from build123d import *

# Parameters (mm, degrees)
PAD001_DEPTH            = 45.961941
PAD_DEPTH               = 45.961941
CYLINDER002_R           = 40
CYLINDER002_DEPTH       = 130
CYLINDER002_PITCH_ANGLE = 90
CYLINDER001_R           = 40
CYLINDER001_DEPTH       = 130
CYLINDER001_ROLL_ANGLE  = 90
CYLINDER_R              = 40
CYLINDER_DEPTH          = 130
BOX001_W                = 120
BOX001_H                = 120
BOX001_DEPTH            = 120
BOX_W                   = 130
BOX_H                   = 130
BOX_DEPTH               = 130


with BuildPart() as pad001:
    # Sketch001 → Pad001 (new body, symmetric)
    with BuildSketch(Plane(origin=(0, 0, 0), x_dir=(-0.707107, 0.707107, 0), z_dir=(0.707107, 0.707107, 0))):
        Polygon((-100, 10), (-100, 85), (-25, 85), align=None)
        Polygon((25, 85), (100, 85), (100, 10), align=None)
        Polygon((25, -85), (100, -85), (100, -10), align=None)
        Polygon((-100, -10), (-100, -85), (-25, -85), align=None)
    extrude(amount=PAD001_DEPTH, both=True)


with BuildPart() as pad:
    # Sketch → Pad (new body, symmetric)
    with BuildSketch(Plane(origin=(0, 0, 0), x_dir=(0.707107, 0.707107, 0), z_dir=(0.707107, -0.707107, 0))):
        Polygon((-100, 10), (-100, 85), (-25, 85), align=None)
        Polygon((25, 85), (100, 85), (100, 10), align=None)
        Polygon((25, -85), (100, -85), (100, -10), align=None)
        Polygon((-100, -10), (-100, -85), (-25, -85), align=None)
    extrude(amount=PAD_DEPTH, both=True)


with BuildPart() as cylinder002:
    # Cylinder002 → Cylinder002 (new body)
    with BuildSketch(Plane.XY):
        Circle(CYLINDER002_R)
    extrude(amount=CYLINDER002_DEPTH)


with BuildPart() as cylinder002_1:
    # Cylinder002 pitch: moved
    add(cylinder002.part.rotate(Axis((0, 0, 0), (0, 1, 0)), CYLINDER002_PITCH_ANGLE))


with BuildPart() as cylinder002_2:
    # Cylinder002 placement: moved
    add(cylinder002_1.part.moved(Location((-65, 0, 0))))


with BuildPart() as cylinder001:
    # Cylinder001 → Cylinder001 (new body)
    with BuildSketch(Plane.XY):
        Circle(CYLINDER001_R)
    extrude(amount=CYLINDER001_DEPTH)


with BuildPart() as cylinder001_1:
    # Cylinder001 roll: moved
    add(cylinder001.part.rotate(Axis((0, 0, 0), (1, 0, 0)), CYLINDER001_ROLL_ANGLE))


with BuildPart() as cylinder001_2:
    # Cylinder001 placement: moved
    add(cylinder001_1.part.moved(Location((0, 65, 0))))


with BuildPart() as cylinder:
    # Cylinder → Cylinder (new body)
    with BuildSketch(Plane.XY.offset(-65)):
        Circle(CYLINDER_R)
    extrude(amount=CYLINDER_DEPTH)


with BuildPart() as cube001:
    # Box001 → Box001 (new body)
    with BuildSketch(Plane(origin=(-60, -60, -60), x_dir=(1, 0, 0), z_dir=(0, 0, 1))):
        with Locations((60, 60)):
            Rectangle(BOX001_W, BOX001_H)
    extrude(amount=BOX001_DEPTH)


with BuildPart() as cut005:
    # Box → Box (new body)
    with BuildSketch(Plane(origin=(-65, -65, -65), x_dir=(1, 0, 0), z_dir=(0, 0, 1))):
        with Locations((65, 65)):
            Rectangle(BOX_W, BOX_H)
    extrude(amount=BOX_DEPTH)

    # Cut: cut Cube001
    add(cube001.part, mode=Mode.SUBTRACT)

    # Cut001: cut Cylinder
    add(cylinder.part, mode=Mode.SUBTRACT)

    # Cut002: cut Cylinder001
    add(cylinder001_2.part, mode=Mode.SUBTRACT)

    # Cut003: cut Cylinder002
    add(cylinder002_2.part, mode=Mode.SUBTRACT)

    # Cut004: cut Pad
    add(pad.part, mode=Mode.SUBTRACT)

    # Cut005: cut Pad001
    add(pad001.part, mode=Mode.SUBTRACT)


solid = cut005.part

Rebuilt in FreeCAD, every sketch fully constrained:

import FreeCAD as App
import Part
import Sketcher
from FreeCAD import Vector


def add_polygon(sketch, points):
    """Adds a closed chain of lines whose ends are joined by coincident constraints."""
    first, n = sketch.GeometryCount, len(points)
    for a, b in zip(points, points[1:] + points[:1]):
        sketch.addGeometry(Part.LineSegment(App.Vector(*a, 0), App.Vector(*b, 0)), False)
    for i in range(n):
        sketch.addConstraint(Sketcher.Constraint("Coincident", first + i, 2, first + (i + 1) % n, 1))

doc = App.newDocument("Part")
params = doc.addObject("Spreadsheet::Sheet", "Params")
for row, (alias, value) in enumerate([
    ("sketch1_width", "75 mm"),
    ("pad1_length", "91.923882 mm"),
    ("sketch2_width", "75 mm"),
    ("pad2_length", "91.923882 mm"),
    ("sketch3_diameter", "80 mm"),
    ("pad3_length", "130 mm"),
    ("sketch4_diameter", "80 mm"),
    ("pad4_length", "130 mm"),
    ("sketch5_diameter", "80 mm"),
    ("pad5_length", "130 mm"),
    ("sketch6_width", "120 mm"),
    ("pad6_length", "120 mm"),
    ("sketch7_width", "130 mm"),
    ("pad7_length", "130 mm"),
], start=1):
    params.set(f"A{row}", alias)
    params.set(f"B{row}", "=" + value)
    params.setAlias(f"B{row}", alias)

body = doc.addObject("PartDesign::Body", "Body")
body.AllowCompound = True

sketch1 = body.newObject("Sketcher::SketchObject", "Sketch")
sketch1.Placement = App.Placement(Vector(0, 0, 0), App.Rotation(Vector(-0.707106781, 0.707106781, 0), Vector(0, 0, 0.999999999), Vector(0.707106781, 0.707106781, 0), "ZXY"))
add_polygon(sketch1, [(-100, 85), (-100, 10), (-25, 85)])
add_polygon(sketch1, [(100, 85), (25, 85), (100, 10)])
add_polygon(sketch1, [(25, -85), (100, -85), (100, -10)])
add_polygon(sketch1, [(-100, -10), (-100, -85), (-25, -85)])
sketch1.addConstraint(Sketcher.Constraint("Vertical", 0))
sketch1.addConstraint(Sketcher.Constraint("Horizontal", 2))
sketch1.addConstraint(Sketcher.Constraint("Horizontal", 3))
sketch1.addConstraint(Sketcher.Constraint("Vertical", 5))
sketch1.addConstraint(Sketcher.Constraint("Horizontal", 6))
sketch1.addConstraint(Sketcher.Constraint("Vertical", 7))
sketch1.addConstraint(Sketcher.Constraint("Vertical", 9))
sketch1.addConstraint(Sketcher.Constraint("Horizontal", 10))
sketch1.addConstraint(Sketcher.Constraint("Symmetric", 2, 2, 6, 2, -1, 1))
sketch1.addConstraint(Sketcher.Constraint("Symmetric", 5, 2, 9, 2, -1, 1))
sketch1.addConstraint(Sketcher.Constraint("Symmetric", 1, 2, 3, 2, -2))
sketch1.addConstraint(Sketcher.Constraint("Symmetric", 0, 2, 4, 2, -2))
sketch1.addConstraint(Sketcher.Constraint("Perpendicular", 1, 4))
sketch1.addConstraint(Sketcher.Constraint("Perpendicular", 4, 8))
sketch1.addConstraint(Sketcher.Constraint("Perpendicular", 8, 11))
sketch1.addConstraint(Sketcher.Constraint("Horizontal", 7, 2, 11, 2))
sketch1.addConstraint(Sketcher.Constraint("Vertical", 3, 2, 8, 2))
sketch1.addConstraint(Sketcher.Constraint("DistanceX", 2, 2, 2, 1, 75.0))
sketch1.addConstraint(Sketcher.Constraint("DistanceX", 0, 2, -1, 1, 100.0))
sketch1.addConstraint(Sketcher.Constraint("DistanceY", -1, 1, 0, 2, 10.0))
sketch1.setExpression("Constraints[29]", "Params.sketch1_width")
pad1 = body.newObject("PartDesign::Pad", "Pad")
pad1.Profile = sketch1
pad1.setExpression("Length", "Params.pad1_length")
pad1.Midplane = True
body2 = doc.addObject("PartDesign::Body", "Body001")
body2.AllowCompound = True

sketch2 = body2.newObject("Sketcher::SketchObject", "Sketch001")
sketch2.Placement = App.Placement(Vector(0, 0, 0), App.Rotation(Vector(0.707106781, 0.707106781, 0), Vector(0, 0, 0.999999999), Vector(0.707106781, -0.707106781, 0), "ZXY"))
add_polygon(sketch2, [(-100, 85), (-100, 10), (-25, 85)])
add_polygon(sketch2, [(100, 85), (25, 85), (100, 10)])
add_polygon(sketch2, [(25, -85), (100, -85), (100, -10)])
add_polygon(sketch2, [(-100, -10), (-100, -85), (-25, -85)])
sketch2.addConstraint(Sketcher.Constraint("Vertical", 0))
sketch2.addConstraint(Sketcher.Constraint("Horizontal", 2))
sketch2.addConstraint(Sketcher.Constraint("Horizontal", 3))
sketch2.addConstraint(Sketcher.Constraint("Vertical", 5))
sketch2.addConstraint(Sketcher.Constraint("Horizontal", 6))
sketch2.addConstraint(Sketcher.Constraint("Vertical", 7))
sketch2.addConstraint(Sketcher.Constraint("Vertical", 9))
sketch2.addConstraint(Sketcher.Constraint("Horizontal", 10))
sketch2.addConstraint(Sketcher.Constraint("Symmetric", 2, 2, 6, 2, -1, 1))
sketch2.addConstraint(Sketcher.Constraint("Symmetric", 5, 2, 9, 2, -1, 1))
sketch2.addConstraint(Sketcher.Constraint("Symmetric", 1, 2, 3, 2, -2))
sketch2.addConstraint(Sketcher.Constraint("Symmetric", 0, 2, 4, 2, -2))
sketch2.addConstraint(Sketcher.Constraint("Perpendicular", 1, 4))
sketch2.addConstraint(Sketcher.Constraint("Perpendicular", 4, 8))
sketch2.addConstraint(Sketcher.Constraint("Perpendicular", 8, 11))
sketch2.addConstraint(Sketcher.Constraint("Horizontal", 7, 2, 11, 2))
sketch2.addConstraint(Sketcher.Constraint("Vertical", 3, 2, 8, 2))
sketch2.addConstraint(Sketcher.Constraint("DistanceX", 2, 2, 2, 1, 75.0))
sketch2.addConstraint(Sketcher.Constraint("DistanceX", 0, 2, -1, 1, 100.0))
sketch2.addConstraint(Sketcher.Constraint("DistanceY", -1, 1, 0, 2, 10.0))
sketch2.setExpression("Constraints[29]", "Params.sketch2_width")
pad2 = body2.newObject("PartDesign::Pad", "Pad001")
pad2.Profile = sketch2
pad2.setExpression("Length", "Params.pad2_length")
pad2.Midplane = True
body3 = doc.addObject("PartDesign::Body", "Body002")

sketch3 = body3.newObject("Sketcher::SketchObject", "Sketch002")
sketch3.AttachmentSupport = (doc.getObject("XY_Plane002"), [""])
sketch3.MapMode = "FlatFace"
sketch3.addGeometry(Part.Circle(Vector(0, 0, 0), Vector(0, 0, 1), 40), False)
sketch3.addConstraint(Sketcher.Constraint("Coincident", 0, 3, -1, 1))
sketch3.addConstraint(Sketcher.Constraint("Diameter", 0, 80.0))
sketch3.setExpression("Constraints[1]", "Params.sketch3_diameter")
pad3 = body3.newObject("PartDesign::Pad", "Pad002")
pad3.Profile = sketch3
pad3.setExpression("Length", "Params.pad3_length")
body4 = doc.addObject("PartDesign::Body", "Body003")
doc.recompute()

body3.Placement = App.Placement(Vector(0, 0, 0), App.Rotation(Vector(0, 1, 0), 90))
boolean = body4.newObject("PartDesign::Boolean", "Boolean")
boolean.Type = "Fuse"
boolean.addObjects([body3])
body5 = doc.addObject("PartDesign::Body", "Body004")
doc.recompute()

body4.Placement = App.Placement(Vector(-65, 0, 0), App.Rotation(Vector(0, 0, 1), 0))
boolean2 = body5.newObject("PartDesign::Boolean", "Boolean001")
boolean2.Type = "Fuse"
boolean2.addObjects([body4])
body6 = doc.addObject("PartDesign::Body", "Body005")

sketch4 = body6.newObject("Sketcher::SketchObject", "Sketch003")
sketch4.AttachmentSupport = (doc.getObject("XY_Plane005"), [""])
sketch4.MapMode = "FlatFace"
sketch4.addGeometry(Part.Circle(Vector(0, 0, 0), Vector(0, 0, 1), 40), False)
sketch4.addConstraint(Sketcher.Constraint("Coincident", 0, 3, -1, 1))
sketch4.addConstraint(Sketcher.Constraint("Diameter", 0, 80.0))
sketch4.setExpression("Constraints[1]", "Params.sketch4_diameter")
pad4 = body6.newObject("PartDesign::Pad", "Pad003")
pad4.Profile = sketch4
pad4.setExpression("Length", "Params.pad4_length")
body7 = doc.addObject("PartDesign::Body", "Body006")
doc.recompute()

body6.Placement = App.Placement(Vector(0, 0, 0), App.Rotation(Vector(1, 0, 0), 90))
boolean3 = body7.newObject("PartDesign::Boolean", "Boolean002")
boolean3.Type = "Fuse"
boolean3.addObjects([body6])
body8 = doc.addObject("PartDesign::Body", "Body007")
doc.recompute()

body7.Placement = App.Placement(Vector(0, 65, 0), App.Rotation(Vector(0, 0, 1), 0))
boolean4 = body8.newObject("PartDesign::Boolean", "Boolean003")
boolean4.Type = "Fuse"
boolean4.addObjects([body7])
body9 = doc.addObject("PartDesign::Body", "Body008")

sketch5 = body9.newObject("Sketcher::SketchObject", "Sketch004")
sketch5.AttachmentSupport = (doc.getObject("XY_Plane008"), [""])
sketch5.MapMode = "FlatFace"
sketch5.AttachmentOffset = App.Placement(Vector(0, 0, -65), App.Rotation())
sketch5.addGeometry(Part.Circle(Vector(0, 0, 0), Vector(0, 0, 1), 40), False)
sketch5.addConstraint(Sketcher.Constraint("Coincident", 0, 3, -1, 1))
sketch5.addConstraint(Sketcher.Constraint("Diameter", 0, 80.0))
sketch5.setExpression("Constraints[1]", "Params.sketch5_diameter")
pad5 = body9.newObject("PartDesign::Pad", "Pad004")
pad5.Profile = sketch5
pad5.setExpression("Length", "Params.pad5_length")
body10 = doc.addObject("PartDesign::Body", "Body009")

sketch6 = body10.newObject("Sketcher::SketchObject", "Sketch005")
sketch6.AttachmentSupport = (doc.getObject("XY_Plane009"), [""])
sketch6.MapMode = "FlatFace"
sketch6.AttachmentOffset = App.Placement(Vector(0, 0, -60), App.Rotation())
add_polygon(sketch6, [(-60, 60), (-60, -60), (60, -60), (60, 60)])
sketch6.addConstraint(Sketcher.Constraint("Vertical", 0))
sketch6.addConstraint(Sketcher.Constraint("Horizontal", 1))
sketch6.addConstraint(Sketcher.Constraint("Vertical", 2))
sketch6.addConstraint(Sketcher.Constraint("Horizontal", 3))
sketch6.addConstraint(Sketcher.Constraint("Symmetric", 0, 2, 2, 2, -1, 1))
sketch6.addConstraint(Sketcher.Constraint("Equal", 3, 0))
sketch6.addConstraint(Sketcher.Constraint("DistanceX", 1, 1, 1, 2, 120.0))
sketch6.setExpression("Constraints[10]", "Params.sketch6_width")
pad6 = body10.newObject("PartDesign::Pad", "Pad005")
pad6.Profile = sketch6
pad6.setExpression("Length", "Params.pad6_length")
body11 = doc.addObject("PartDesign::Body", "Body010")

sketch7 = body11.newObject("Sketcher::SketchObject", "Sketch006")
sketch7.AttachmentSupport = (doc.getObject("XY_Plane010"), [""])
sketch7.MapMode = "FlatFace"
sketch7.AttachmentOffset = App.Placement(Vector(0, 0, -65), App.Rotation())
add_polygon(sketch7, [(-65, 65), (-65, -65), (65, -65), (65, 65)])
sketch7.addConstraint(Sketcher.Constraint("Vertical", 0))
sketch7.addConstraint(Sketcher.Constraint("Horizontal", 1))
sketch7.addConstraint(Sketcher.Constraint("Vertical", 2))
sketch7.addConstraint(Sketcher.Constraint("Horizontal", 3))
sketch7.addConstraint(Sketcher.Constraint("Symmetric", 0, 2, 2, 2, -1, 1))
sketch7.addConstraint(Sketcher.Constraint("Equal", 3, 0))
sketch7.addConstraint(Sketcher.Constraint("DistanceX", 1, 1, 1, 2, 130.0))
sketch7.setExpression("Constraints[10]", "Params.sketch7_width")
pad7 = body11.newObject("PartDesign::Pad", "Pad006")
pad7.Profile = sketch7
pad7.setExpression("Length", "Params.pad7_length")
doc.recompute()

boolean5 = body11.newObject("PartDesign::Boolean", "Boolean004")
boolean5.Type = "Cut"
boolean5.addObjects([body10])
doc.recompute()

boolean6 = body11.newObject("PartDesign::Boolean", "Boolean005")
boolean6.Type = "Cut"
boolean6.addObjects([body9])
doc.recompute()

boolean7 = body11.newObject("PartDesign::Boolean", "Boolean006")
boolean7.Type = "Cut"
boolean7.addObjects([body8])
doc.recompute()

boolean8 = body11.newObject("PartDesign::Boolean", "Boolean007")
boolean8.Type = "Cut"
boolean8.addObjects([body5])
doc.recompute()

boolean9 = body11.newObject("PartDesign::Boolean", "Boolean008")
boolean9.Type = "Cut"
boolean9.addObjects([body2])
doc.recompute()

boolean10 = body11.newObject("PartDesign::Boolean", "Boolean009")
boolean10.Type = "Cut"
boolean10.addObjects([body])

doc.recompute()
